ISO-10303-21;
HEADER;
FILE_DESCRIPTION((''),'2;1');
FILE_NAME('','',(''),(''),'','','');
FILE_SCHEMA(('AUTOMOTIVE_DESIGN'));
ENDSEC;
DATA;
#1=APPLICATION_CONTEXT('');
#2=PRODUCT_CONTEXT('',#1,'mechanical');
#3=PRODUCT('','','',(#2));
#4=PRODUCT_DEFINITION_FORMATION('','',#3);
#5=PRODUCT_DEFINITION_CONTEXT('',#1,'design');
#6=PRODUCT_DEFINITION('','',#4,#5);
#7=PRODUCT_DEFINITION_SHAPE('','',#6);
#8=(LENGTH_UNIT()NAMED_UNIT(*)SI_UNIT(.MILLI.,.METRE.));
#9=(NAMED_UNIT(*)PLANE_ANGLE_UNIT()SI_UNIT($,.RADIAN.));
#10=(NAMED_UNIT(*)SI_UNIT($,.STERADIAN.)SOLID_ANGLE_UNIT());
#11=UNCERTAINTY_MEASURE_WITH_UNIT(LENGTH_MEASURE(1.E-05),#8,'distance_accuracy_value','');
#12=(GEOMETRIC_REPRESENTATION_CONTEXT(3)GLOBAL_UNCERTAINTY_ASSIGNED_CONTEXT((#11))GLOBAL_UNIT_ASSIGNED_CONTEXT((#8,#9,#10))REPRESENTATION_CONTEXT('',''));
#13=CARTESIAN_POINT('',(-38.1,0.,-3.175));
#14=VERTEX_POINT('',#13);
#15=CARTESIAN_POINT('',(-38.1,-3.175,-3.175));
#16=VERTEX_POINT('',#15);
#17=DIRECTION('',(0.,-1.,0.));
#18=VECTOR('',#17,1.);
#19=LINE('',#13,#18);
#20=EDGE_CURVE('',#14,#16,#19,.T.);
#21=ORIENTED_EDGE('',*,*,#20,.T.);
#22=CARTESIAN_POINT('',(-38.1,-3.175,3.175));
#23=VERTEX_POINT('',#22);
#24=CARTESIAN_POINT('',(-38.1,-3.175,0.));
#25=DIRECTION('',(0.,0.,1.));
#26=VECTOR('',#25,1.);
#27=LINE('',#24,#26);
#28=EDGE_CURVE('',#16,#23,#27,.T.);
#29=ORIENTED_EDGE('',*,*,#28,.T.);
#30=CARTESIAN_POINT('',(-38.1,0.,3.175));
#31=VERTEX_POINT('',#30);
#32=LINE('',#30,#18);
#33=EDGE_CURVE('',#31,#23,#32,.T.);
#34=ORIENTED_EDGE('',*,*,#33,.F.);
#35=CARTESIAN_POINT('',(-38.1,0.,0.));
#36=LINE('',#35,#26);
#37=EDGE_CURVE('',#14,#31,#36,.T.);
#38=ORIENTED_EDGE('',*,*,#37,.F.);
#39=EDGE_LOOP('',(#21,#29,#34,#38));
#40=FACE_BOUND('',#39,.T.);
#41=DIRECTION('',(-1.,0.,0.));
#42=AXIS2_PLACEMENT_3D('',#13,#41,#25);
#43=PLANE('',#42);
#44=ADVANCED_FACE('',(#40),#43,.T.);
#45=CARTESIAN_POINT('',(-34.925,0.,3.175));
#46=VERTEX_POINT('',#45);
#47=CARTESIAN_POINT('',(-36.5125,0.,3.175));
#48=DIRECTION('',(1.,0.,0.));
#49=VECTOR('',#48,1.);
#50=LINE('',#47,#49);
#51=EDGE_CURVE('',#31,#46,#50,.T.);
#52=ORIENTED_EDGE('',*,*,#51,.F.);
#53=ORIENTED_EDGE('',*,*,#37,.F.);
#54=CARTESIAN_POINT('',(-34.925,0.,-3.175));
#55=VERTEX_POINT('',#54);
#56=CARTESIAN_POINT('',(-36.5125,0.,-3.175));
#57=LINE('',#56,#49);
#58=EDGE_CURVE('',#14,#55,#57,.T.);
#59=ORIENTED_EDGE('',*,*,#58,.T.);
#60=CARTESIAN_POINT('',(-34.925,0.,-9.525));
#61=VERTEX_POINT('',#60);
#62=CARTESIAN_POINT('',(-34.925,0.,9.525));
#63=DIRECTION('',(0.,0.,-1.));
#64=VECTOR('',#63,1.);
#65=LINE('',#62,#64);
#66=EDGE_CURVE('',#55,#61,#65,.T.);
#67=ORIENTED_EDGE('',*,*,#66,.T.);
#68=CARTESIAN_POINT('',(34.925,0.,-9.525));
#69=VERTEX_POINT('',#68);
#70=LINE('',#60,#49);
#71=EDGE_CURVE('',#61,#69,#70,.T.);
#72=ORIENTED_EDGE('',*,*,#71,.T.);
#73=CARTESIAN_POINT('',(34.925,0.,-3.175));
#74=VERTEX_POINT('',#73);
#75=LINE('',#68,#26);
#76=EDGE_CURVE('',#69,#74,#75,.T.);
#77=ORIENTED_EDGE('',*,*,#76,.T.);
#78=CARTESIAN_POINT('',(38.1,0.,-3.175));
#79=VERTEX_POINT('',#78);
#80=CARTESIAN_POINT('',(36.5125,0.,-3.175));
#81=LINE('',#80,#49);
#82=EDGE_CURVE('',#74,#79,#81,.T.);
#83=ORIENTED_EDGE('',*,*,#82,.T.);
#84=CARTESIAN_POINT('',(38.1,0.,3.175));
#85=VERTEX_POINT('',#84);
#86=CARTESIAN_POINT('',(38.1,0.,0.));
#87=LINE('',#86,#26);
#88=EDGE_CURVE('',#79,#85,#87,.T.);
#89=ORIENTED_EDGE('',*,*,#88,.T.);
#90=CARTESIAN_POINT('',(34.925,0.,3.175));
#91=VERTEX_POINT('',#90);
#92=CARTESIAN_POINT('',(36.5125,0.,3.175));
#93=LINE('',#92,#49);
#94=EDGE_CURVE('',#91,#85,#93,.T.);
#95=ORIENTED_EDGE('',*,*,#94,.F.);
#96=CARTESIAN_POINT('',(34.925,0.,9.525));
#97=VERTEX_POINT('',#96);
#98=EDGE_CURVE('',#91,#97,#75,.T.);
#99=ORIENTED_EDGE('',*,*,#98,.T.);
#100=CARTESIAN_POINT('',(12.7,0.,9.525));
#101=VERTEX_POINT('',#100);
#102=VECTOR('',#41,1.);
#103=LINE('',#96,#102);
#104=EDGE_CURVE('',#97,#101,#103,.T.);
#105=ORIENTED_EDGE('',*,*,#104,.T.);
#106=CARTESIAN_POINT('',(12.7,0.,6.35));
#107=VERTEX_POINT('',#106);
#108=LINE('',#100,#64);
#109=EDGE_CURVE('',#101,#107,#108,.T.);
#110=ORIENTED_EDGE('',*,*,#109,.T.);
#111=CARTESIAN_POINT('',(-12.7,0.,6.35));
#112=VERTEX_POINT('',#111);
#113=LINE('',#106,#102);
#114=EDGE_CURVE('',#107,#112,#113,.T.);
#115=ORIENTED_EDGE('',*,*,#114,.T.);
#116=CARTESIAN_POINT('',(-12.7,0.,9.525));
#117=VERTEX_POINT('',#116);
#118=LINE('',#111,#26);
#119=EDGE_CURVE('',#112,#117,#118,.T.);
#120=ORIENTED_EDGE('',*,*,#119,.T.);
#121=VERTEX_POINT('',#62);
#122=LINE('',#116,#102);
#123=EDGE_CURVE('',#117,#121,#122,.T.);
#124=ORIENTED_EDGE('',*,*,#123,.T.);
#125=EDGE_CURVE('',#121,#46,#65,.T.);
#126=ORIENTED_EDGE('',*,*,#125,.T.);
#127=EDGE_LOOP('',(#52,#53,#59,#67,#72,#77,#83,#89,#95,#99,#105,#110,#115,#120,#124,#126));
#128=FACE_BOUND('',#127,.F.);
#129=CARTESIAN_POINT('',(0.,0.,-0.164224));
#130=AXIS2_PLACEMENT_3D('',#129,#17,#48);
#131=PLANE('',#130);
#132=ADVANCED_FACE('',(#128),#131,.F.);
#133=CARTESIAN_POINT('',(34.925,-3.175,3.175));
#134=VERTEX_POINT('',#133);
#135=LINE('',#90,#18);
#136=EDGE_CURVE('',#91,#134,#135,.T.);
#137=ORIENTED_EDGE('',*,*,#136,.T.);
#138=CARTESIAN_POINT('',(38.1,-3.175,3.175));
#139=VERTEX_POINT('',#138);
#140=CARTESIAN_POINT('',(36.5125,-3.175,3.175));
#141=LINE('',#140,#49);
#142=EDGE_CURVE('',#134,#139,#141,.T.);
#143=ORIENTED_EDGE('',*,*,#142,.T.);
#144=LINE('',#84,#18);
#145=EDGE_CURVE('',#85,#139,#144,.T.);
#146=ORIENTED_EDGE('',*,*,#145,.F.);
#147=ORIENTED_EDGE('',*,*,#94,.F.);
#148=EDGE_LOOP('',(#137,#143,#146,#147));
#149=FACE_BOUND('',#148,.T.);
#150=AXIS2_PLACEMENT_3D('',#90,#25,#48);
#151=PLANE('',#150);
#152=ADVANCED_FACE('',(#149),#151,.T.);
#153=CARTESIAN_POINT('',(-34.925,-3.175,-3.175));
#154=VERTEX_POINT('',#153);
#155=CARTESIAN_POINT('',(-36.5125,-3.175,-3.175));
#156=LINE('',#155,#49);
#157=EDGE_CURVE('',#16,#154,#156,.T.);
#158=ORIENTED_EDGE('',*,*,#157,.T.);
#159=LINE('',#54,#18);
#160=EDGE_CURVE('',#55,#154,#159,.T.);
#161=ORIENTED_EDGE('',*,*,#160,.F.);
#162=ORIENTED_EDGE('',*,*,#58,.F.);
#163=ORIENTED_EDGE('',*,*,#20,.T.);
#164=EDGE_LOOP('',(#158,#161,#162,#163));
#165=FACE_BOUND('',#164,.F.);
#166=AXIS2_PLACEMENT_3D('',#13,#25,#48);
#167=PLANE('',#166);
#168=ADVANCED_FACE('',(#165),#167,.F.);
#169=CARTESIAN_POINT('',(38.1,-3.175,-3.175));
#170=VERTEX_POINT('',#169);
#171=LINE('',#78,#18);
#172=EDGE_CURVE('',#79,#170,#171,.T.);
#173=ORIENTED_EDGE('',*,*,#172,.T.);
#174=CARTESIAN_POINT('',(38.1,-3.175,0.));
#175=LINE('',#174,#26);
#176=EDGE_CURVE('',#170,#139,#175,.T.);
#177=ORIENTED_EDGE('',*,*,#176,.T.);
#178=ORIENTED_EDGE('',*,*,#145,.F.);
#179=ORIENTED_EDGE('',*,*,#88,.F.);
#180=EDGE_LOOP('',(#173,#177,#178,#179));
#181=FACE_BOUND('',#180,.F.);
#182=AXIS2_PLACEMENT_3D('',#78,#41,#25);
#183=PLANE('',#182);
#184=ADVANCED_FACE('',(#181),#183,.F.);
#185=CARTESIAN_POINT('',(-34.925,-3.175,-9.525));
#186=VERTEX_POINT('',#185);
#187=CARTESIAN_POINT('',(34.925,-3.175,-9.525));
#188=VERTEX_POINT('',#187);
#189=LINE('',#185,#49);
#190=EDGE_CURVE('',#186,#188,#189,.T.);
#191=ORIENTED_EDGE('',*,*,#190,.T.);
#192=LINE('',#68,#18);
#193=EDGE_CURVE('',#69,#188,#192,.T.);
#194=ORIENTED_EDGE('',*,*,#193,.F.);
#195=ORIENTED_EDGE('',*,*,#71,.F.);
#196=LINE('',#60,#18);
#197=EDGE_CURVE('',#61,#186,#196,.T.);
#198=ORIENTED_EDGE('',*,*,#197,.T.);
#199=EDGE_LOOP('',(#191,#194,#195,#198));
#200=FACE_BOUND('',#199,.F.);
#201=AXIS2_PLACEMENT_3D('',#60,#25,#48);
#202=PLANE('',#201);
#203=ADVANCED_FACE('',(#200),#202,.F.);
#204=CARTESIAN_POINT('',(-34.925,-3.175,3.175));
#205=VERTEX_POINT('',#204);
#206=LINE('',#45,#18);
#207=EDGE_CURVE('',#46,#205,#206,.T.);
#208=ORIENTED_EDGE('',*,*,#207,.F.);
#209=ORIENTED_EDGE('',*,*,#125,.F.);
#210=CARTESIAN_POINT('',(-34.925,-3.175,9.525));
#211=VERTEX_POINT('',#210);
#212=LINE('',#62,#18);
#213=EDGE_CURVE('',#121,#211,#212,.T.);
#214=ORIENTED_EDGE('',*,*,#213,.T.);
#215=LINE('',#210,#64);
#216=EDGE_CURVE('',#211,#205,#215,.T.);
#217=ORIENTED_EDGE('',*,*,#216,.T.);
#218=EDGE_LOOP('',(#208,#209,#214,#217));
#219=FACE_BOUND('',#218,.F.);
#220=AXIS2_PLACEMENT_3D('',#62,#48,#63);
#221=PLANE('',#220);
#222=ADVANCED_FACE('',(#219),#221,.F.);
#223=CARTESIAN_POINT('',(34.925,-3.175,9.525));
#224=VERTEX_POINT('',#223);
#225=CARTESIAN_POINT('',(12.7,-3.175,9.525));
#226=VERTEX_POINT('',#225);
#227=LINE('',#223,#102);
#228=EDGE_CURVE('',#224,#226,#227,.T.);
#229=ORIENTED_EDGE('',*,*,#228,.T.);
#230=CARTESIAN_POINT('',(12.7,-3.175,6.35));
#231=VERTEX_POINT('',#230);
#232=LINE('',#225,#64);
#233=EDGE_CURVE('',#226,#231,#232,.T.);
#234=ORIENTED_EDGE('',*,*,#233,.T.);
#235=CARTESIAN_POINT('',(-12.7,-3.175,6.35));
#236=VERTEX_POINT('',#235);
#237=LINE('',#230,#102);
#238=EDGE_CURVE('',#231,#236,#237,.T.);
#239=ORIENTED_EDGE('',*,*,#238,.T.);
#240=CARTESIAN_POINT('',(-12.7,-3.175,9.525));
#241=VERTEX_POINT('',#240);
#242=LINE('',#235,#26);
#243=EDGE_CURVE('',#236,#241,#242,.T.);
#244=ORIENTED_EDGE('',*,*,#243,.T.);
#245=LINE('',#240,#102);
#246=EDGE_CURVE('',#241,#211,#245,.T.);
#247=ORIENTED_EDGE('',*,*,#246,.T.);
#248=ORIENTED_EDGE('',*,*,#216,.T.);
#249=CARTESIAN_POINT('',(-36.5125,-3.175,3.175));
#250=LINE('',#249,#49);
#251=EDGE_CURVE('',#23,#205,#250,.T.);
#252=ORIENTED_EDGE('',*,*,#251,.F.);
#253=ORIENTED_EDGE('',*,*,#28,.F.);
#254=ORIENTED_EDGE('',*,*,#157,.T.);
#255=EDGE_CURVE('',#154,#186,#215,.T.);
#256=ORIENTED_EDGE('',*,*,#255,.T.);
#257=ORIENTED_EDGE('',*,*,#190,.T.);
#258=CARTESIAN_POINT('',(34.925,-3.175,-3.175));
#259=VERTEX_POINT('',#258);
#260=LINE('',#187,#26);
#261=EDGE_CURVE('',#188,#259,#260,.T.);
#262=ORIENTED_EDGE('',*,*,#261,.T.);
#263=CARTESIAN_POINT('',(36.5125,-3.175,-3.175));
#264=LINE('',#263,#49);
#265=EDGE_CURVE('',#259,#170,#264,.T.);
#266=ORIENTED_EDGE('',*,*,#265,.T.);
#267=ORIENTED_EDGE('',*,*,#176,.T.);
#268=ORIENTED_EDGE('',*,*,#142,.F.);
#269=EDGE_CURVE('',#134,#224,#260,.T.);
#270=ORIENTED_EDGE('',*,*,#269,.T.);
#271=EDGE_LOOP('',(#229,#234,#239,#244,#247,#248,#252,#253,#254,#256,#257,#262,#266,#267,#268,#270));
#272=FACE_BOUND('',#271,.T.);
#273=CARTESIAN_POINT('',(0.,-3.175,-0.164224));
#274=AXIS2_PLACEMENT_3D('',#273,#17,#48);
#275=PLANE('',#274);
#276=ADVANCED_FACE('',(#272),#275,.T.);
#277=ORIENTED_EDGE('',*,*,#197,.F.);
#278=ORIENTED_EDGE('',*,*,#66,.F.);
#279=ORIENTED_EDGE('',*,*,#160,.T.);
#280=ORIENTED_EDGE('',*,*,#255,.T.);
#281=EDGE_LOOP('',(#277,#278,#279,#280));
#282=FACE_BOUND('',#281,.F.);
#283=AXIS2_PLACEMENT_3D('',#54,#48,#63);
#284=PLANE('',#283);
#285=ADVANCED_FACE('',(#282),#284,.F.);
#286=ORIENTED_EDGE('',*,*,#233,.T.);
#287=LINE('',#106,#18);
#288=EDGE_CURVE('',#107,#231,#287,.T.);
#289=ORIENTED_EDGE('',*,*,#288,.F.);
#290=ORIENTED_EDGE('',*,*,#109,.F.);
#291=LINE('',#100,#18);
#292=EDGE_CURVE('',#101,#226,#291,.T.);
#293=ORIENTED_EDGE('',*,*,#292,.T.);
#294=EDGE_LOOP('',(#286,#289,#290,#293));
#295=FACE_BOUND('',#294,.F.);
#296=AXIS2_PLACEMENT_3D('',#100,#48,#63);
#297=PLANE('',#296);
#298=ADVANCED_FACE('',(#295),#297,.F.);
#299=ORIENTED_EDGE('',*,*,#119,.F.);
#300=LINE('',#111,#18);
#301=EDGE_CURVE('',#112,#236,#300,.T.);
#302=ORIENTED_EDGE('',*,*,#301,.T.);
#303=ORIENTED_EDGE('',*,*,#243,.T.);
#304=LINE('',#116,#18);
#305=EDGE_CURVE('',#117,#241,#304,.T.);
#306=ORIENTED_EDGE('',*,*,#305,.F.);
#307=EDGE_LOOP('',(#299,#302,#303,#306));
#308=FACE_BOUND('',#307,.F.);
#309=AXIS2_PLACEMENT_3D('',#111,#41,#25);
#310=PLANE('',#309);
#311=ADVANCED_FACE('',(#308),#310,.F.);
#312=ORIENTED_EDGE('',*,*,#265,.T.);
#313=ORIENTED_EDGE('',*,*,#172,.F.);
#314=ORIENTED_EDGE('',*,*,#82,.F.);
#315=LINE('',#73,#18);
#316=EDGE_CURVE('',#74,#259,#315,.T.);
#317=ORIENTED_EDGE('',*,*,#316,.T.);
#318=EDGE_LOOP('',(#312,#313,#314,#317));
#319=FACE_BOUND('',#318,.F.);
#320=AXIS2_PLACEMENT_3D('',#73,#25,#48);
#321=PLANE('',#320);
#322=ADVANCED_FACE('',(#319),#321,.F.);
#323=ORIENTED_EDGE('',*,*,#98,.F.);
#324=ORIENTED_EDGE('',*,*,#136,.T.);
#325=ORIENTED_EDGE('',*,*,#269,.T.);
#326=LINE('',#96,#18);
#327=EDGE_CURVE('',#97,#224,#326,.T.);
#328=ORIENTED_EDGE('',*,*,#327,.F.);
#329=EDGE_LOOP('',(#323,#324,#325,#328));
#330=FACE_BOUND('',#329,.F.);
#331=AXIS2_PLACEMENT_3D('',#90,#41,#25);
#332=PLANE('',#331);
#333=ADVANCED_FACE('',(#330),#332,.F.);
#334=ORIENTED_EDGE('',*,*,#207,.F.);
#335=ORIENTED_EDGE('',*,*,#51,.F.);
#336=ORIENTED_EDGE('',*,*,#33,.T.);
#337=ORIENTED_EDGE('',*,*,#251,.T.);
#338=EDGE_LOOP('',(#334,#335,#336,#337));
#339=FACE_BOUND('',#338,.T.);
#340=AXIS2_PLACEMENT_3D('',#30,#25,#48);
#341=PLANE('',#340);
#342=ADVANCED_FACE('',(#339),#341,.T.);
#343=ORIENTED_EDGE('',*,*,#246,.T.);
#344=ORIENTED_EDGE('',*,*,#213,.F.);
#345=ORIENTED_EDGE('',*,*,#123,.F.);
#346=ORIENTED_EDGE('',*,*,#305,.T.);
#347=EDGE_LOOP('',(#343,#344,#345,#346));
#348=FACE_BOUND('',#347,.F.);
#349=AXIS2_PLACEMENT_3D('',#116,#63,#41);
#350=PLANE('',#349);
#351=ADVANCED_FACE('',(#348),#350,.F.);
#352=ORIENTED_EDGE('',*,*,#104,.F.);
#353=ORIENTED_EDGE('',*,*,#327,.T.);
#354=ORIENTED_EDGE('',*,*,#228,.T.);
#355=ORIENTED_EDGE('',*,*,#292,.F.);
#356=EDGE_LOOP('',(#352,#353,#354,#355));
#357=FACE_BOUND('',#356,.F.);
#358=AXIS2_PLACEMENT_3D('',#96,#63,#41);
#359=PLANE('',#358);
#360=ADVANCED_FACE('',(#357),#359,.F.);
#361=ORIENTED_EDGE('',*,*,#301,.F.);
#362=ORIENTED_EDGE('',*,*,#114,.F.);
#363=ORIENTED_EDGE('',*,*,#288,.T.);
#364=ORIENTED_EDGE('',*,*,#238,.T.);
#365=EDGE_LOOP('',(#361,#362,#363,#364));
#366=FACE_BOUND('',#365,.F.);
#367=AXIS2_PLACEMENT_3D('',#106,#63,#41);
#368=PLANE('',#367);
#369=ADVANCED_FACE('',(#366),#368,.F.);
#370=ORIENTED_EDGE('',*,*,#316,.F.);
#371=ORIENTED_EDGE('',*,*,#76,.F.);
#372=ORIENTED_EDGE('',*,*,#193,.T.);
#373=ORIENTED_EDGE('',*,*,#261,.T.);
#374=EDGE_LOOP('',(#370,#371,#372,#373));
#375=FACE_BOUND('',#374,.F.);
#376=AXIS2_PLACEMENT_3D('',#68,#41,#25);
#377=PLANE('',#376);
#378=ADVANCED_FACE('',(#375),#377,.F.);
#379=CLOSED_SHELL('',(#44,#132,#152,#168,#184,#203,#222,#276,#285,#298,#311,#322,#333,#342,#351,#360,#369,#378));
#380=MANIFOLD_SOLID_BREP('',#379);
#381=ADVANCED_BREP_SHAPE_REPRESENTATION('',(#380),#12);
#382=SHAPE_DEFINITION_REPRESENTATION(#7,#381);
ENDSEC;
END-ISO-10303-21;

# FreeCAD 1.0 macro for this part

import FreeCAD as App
import Part
import Sketcher
from FreeCAD import Vector
Q = App.Units.Quantity


def add_polygon(sketch, points):
    """Adds a closed chain of lines whose ends are joined by coincident constraints."""
    first, n = sketch.GeometryCount, len(points)
    for a, b in zip(points, points[1:] + points[:1]):
        sketch.addGeometry(Part.LineSegment(App.Vector(*a, 0), App.Vector(*b, 0)), False)
    for i in range(n):
        sketch.addConstraint(Sketcher.Constraint("Coincident", first + i, 2, first + (i + 1) % n, 1))

doc = App.newDocument("Part")
body = doc.addObject("PartDesign::Body", "Body")

sketch1 = body.newObject("Sketcher::SketchObject", "Sketch")
sketch1.AttachmentSupport = (doc.getObject("XZ_Plane"), [""])
sketch1.MapMode = "FlatFace"
add_polygon(sketch1, [(-34.9, -9.5), (34.9, -9.5), (34.9, -3.2), (38.1, -3.2), (38.1, 3.2), (34.9, 3.2), (34.9, 9.5), (12.7, 9.5), (12.7, 6.3), (-12.7, 6.3), (-12.7, 9.5), (-34.9, 9.5), (-34.9, 3.2), (-38.1, 3.2), (-38.1, -3.2), (-34.9, -3.2)])
sketch1.addConstraint([
    Sketcher.Constraint("Horizontal", 0),
    Sketcher.Constraint("Vertical", 1),
    Sketcher.Constraint("Horizontal", 2),
    Sketcher.Constraint("Vertical", 3),
    Sketcher.Constraint("Horizontal", 4),
    Sketcher.Constraint("Vertical", 5),
    Sketcher.Constraint("Horizontal", 6),
    Sketcher.Constraint("Vertical", 7),
    Sketcher.Constraint("Horizontal", 8),
    Sketcher.Constraint("Vertical", 9),
    Sketcher.Constraint("Horizontal", 10),
    Sketcher.Constraint("Vertical", 11),
    Sketcher.Constraint("Horizontal", 12),
    Sketcher.Constraint("Vertical", 13),
    Sketcher.Constraint("Horizontal", 14),
    Sketcher.Constraint("Vertical", 15),
    Sketcher.Constraint("Symmetric", 0, 2, 10, 2, -1, 1),
    Sketcher.Constraint("Symmetric", 2, 2, 12, 2, -1, 1),
    Sketcher.Constraint("Symmetric", 4, 2, 14, 2, -1, 1),
    Sketcher.Constraint("Symmetric", 6, 2, 9, 2, -2),
    Sketcher.Constraint("Symmetric", 4, 2, 11, 2, -2),
    Sketcher.Constraint("Equal", 1, 3),
    Sketcher.Constraint("Equal", 14, 7),
    Sketcher.Constraint("DistanceX", 8, 2, 8, 1, Q("1 in")),
    Sketcher.Constraint("DistanceX", 6, 2, 3, 2, Q("1 in")),
    Sketcher.Constraint("DistanceX", 0, 1, 0, 2, Q("2.75 in")),
    Sketcher.Constraint("DistanceY", 1, 1, 1, 2, Q("0.25 in")),
])
pad1 = body.newObject("PartDesign::Pad", "Pad")
pad1.Profile = sketch1
pad1.Length = Q("0.125 in")

doc.recompute()
